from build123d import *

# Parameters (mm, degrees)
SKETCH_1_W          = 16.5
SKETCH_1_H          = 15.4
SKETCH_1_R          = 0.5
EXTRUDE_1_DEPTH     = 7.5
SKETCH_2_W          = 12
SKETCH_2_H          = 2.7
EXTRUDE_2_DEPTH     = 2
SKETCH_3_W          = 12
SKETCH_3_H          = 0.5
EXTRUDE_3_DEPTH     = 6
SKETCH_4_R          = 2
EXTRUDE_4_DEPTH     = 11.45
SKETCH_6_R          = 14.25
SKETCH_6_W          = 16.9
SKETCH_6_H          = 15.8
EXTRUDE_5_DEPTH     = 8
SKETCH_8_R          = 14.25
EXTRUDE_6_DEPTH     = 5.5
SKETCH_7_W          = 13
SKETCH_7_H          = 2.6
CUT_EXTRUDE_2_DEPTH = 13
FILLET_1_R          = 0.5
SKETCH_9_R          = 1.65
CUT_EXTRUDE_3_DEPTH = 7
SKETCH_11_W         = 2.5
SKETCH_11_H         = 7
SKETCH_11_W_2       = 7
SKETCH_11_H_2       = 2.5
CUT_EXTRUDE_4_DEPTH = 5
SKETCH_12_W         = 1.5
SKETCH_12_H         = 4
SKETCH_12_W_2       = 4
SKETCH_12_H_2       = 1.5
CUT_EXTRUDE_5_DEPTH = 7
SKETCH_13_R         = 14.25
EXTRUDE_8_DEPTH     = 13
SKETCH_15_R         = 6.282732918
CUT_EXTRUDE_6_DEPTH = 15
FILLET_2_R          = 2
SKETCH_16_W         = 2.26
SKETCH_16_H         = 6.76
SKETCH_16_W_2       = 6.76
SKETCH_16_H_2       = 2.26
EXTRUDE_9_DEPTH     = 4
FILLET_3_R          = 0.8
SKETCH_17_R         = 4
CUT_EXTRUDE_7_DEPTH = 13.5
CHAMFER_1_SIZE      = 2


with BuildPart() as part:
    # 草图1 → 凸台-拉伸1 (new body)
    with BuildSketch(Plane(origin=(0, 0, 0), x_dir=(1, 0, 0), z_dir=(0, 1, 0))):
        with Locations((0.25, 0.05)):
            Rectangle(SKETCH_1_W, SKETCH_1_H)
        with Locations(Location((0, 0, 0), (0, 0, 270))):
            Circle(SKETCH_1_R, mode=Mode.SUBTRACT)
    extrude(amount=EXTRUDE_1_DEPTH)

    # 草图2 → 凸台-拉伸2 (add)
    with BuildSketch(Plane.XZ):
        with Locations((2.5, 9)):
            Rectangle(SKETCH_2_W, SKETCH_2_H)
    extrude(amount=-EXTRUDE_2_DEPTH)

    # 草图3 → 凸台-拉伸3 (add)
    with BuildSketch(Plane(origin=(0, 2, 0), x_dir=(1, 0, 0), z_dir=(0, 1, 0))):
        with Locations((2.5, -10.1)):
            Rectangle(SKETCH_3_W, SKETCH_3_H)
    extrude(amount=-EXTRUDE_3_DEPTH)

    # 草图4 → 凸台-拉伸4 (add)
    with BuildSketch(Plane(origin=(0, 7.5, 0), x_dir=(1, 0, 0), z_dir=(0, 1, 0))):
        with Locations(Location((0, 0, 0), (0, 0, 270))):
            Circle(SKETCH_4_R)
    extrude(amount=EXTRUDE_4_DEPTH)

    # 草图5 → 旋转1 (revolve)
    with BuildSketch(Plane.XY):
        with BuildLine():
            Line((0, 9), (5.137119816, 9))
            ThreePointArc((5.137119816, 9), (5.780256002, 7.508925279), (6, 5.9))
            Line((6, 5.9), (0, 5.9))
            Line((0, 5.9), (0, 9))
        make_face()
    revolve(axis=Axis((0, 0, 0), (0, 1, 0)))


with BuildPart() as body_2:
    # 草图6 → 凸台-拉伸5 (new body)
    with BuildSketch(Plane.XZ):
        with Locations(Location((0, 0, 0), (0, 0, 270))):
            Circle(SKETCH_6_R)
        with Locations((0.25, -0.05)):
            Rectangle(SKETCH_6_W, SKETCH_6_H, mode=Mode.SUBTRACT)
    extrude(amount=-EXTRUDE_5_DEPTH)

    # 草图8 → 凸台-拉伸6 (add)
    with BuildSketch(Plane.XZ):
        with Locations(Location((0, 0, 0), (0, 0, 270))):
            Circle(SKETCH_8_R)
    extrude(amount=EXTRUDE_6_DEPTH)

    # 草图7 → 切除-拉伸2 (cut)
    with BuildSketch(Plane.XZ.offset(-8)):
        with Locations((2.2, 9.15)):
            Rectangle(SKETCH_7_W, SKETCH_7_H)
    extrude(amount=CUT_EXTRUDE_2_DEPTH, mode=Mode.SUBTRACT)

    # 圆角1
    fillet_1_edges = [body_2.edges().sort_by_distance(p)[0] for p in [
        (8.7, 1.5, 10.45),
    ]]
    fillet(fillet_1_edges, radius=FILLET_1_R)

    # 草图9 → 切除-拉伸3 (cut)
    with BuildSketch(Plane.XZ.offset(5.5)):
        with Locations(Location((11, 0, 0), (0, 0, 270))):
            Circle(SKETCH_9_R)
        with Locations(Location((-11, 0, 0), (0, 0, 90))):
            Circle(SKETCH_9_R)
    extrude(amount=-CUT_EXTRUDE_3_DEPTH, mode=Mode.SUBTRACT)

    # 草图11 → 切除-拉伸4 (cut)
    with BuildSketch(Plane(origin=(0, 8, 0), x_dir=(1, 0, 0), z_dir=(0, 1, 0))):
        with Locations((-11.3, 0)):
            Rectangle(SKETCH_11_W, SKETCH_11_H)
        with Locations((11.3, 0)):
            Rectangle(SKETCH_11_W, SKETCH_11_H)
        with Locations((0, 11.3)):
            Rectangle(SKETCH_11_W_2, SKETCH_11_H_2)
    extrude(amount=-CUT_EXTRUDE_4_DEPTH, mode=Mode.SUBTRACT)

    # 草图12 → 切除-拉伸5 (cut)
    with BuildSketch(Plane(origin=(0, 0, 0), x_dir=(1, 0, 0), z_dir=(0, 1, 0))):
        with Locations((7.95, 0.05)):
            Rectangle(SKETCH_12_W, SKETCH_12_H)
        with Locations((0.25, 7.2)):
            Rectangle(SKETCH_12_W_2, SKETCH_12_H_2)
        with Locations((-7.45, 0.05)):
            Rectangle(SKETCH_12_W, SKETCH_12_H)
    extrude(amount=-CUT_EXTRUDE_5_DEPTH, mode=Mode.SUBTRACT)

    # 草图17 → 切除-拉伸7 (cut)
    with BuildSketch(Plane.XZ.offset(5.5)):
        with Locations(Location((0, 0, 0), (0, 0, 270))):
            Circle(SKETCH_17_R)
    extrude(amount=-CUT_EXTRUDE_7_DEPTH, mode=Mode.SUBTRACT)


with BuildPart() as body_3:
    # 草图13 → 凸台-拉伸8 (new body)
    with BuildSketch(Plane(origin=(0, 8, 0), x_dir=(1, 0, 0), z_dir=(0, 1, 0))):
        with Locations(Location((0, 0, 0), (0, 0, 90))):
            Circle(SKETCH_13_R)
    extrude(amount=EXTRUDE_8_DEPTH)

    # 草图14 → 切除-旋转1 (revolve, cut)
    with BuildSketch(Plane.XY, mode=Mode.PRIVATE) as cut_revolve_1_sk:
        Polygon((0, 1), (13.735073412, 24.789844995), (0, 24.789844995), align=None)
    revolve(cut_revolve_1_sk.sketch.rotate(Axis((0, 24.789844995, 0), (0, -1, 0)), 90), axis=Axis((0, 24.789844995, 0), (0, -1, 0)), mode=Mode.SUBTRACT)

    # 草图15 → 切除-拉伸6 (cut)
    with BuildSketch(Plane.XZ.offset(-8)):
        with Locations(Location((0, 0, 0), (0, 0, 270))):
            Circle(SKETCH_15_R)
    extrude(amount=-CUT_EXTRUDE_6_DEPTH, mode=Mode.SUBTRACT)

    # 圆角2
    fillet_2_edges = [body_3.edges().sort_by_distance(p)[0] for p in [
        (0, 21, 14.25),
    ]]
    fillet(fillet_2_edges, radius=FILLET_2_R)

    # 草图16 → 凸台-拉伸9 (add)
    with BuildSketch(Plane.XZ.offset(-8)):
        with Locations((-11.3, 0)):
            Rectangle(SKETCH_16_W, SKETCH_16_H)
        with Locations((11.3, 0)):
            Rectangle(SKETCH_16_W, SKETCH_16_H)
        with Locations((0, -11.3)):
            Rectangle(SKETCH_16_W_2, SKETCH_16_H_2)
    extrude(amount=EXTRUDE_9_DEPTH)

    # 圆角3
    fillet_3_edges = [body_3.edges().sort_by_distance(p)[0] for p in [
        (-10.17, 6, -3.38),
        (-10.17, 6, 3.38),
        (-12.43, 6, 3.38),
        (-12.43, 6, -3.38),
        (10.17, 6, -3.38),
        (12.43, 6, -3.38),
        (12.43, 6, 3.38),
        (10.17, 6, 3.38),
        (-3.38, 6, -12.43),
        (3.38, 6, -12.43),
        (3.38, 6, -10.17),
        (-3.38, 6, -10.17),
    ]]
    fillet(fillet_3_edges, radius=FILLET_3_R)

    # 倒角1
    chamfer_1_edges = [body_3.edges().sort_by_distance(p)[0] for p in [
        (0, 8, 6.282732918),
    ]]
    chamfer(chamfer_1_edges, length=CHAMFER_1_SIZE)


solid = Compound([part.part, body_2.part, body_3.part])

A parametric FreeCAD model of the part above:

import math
import FreeCAD as App
import Part
import Sketcher

V = App.Vector
Q = App.Units.Quantity


def edges_at(feature, points):
    """Names of the edges that pass closest to the given points."""
    edges = feature.Shape.Edges
    near = lambda p: min(range(len(edges)), key=lambda i: edges[i].distToShape(Part.Vertex(*p))[0])
    return sorted({f"Edge{near(p) + 1}" for p in points})

doc = App.newDocument("Part")
body = doc.addObject("PartDesign::Body", "Body")

# Sketch on XZ plane
sketch1 = doc.addObject("Sketcher::SketchObject", "Sketch")
body.addObject(sketch1)
sketch1.AttachmentSupport = (doc.XZ_Plane, [""])
sketch1.MapMode = "FlatFace"
sketch1.addGeometry([
    Part.LineSegment(V(-8, -7.8, 0), V(-8, 7.7, 0)),  # 0
    Part.LineSegment(V(-8, 7.7, 0), V(8.5, 7.7, 0)),  # 1
    Part.LineSegment(V(8.5, 7.7, 0), V(8.5, -7.8, 0)),  # 2
    Part.LineSegment(V(8.5, -7.8, 0), V(-8, -7.8, 0)),  # 3
    Part.Circle(V(0, 0, 0), V(0, 0, 1), 0.5),  # 4
], False)
sketch1.addConstraint([
    Sketcher.Constraint("Coincident", 0, 2, 1, 1),
    Sketcher.Constraint("Coincident", 1, 2, 2, 1),
    Sketcher.Constraint("Coincident", 2, 2, 3, 1),
    Sketcher.Constraint("Coincident", 3, 2, 0, 1),
    Sketcher.Constraint("Vertical", 0),
    Sketcher.Constraint("Horizontal", 1),
    Sketcher.Constraint("Vertical", 2),
    Sketcher.Constraint("Horizontal", 3),
    Sketcher.Constraint("Coincident", 4, 3, -1, 1),
    Sketcher.Constraint("Diameter", 4, Q("1 mm")),
    Sketcher.Constraint("DistanceX", 1, 1, 1, 2, Q("16.5 mm")),
    Sketcher.Constraint("DistanceY", 0, 1, 0, 2, Q("15.4 mm")),
    Sketcher.Constraint("DistanceX", 0, 2, -1, 1, Q("8 mm")),
    Sketcher.Constraint("DistanceY", -1, 1, 0, 2, Q("7.65 mm")),
])
pad1 = doc.addObject("PartDesign::Pad", "Pad")
body.addObject(pad1)
pad1.Profile = sketch1
pad1.Length = 7.5
pad1.Reversed = True

# Sketch on XZ plane
sketch2 = doc.addObject("Sketcher::SketchObject", "Sketch001")
body.addObject(sketch2)
sketch2.AttachmentSupport = (doc.XZ_Plane, [""])
sketch2.MapMode = "FlatFace"
sketch2.addGeometry([
    Part.LineSegment(V(-3.5, 10.3, 0), V(-3.5, 7.7, 0)),
    Part.LineSegment(V(-3.5, 7.7, 0), V(8.5, 7.7, 0)),
    Part.LineSegment(V(8.5, 7.7, 0), V(8.5, 10.3, 0)),
    Part.LineSegment(V(8.5, 10.3, 0), V(-3.5, 10.3, 0)),
], False)
sketch2.addConstraint([
    Sketcher.Constraint("Coincident", 0, 2, 1, 1),
    Sketcher.Constraint("Coincident", 1, 2, 2, 1),
    Sketcher.Constraint("Coincident", 2, 2, 3, 1),
    Sketcher.Constraint("Coincident", 3, 2, 0, 1),
    Sketcher.Constraint("Vertical", 0),
    Sketcher.Constraint("Horizontal", 1),
    Sketcher.Constraint("Vertical", 2),
    Sketcher.Constraint("Horizontal", 3),
    Sketcher.Constraint("DistanceX", 1, 1, 1, 2, Q("12 mm")),
    Sketcher.Constraint("DistanceY", 0, 2, 0, 1, Q("2.7 mm")),
    Sketcher.Constraint("DistanceX", 0, 2, -1, 1, Q("3.5 mm")),
    Sketcher.Constraint("DistanceY", -1, 1, 0, 2, Q("7.65 mm")),
])
pad2 = doc.addObject("PartDesign::Pad", "Pad001")
body.addObject(pad2)
pad2.Profile = sketch2
pad2.Length = 2
pad2.Reversed = True

# Sketch on XZ plane
sketch3 = doc.addObject("Sketcher::SketchObject", "Sketch002")
body.addObject(sketch3)
sketch3.AttachmentSupport = (doc.XZ_Plane, [""])
sketch3.MapMode = "FlatFace"
sketch3.AttachmentOffset = App.Placement(V(0, 0, -2), App.Rotation())
sketch3.addGeometry([
    Part.LineSegment(V(-3.5, 9.8, 0), V(-3.5, 10.3, 0)),
    Part.LineSegment(V(-3.5, 10.3, 0), V(8.5, 10.3, 0)),
    Part.LineSegment(V(8.5, 10.3, 0), V(8.5, 9.8, 0)),
    Part.LineSegment(V(8.5, 9.8, 0), V(-3.5, 9.8, 0)),
], False)
sketch3.addConstraint([
    Sketcher.Constraint("Coincident", 0, 2, 1, 1),
    Sketcher.Constraint("Coincident", 1, 2, 2, 1),
    Sketcher.Constraint("Coincident", 2, 2, 3, 1),
    Sketcher.Constraint("Coincident", 3, 2, 0, 1),
    Sketcher.Constraint("Vertical", 0),
    Sketcher.Constraint("Horizontal", 1),
    Sketcher.Constraint("Vertical", 2),
    Sketcher.Constraint("Horizontal", 3),
    Sketcher.Constraint("DistanceX", 1, 1, 1, 2, Q("12 mm")),
    Sketcher.Constraint("DistanceY", 0, 1, 0, 2, Q("0.5 mm")),
    Sketcher.Constraint("DistanceX", 0, 2, -1, 1, Q("3.5 mm")),
    Sketcher.Constraint("DistanceY", -1, 1, 0, 2, Q("10.35 mm")),
])
pad3 = doc.addObject("PartDesign::Pad", "Pad002")
body.addObject(pad3)
pad3.Profile = sketch3
pad3.Length = 6

# Sketch on XZ plane
sketch4 = doc.addObject("Sketcher::SketchObject", "Sketch003")
body.addObject(sketch4)
sketch4.AttachmentSupport = (doc.XZ_Plane, [""])
sketch4.MapMode = "FlatFace"
sketch4.AttachmentOffset = App.Placement(V(0, 0, -7.5), App.Rotation())
sketch4.addGeometry(Part.Circle(V(0, 0, 0), V(0, 0, 1), 2), False)
sketch4.addConstraint([
    Sketcher.Constraint("Coincident", 0, 3, -1, 1),
    Sketcher.Constraint("Diameter", 0, Q("4 mm")),
])
pad4 = doc.addObject("PartDesign::Pad", "Pad003")
body.addObject(pad4)
pad4.Profile = sketch4
pad4.Length = 11.45
pad4.Reversed = True

# Sketch on XY plane
sketch5 = doc.addObject("Sketcher::SketchObject", "Sketch004")
body.addObject(sketch5)
sketch5.AttachmentSupport = (doc.XY_Plane, [""])
sketch5.MapMode = "FlatFace"
sketch5.addGeometry([
    Part.LineSegment(V(5.1, 9, 0), V(0, 9, 0)),
    Part.LineSegment(V(0, 9, 0), V(0, 5.9, 0)),
    Part.LineSegment(V(0, 5.9, 0), V(6, 5.9, 0)),
    Part.ArcOfCircle(Part.Circle(V(0, 5.9, 0), V(0, 0, 1), 6), math.radians(0), math.radians(31)),
], False)
sketch5.addConstraint([
    Sketcher.Constraint("Coincident", 0, 2, 1, 1),
    Sketcher.Constraint("Coincident", 1, 2, 2, 1),
    Sketcher.Constraint("Coincident", 2, 2, 3, 1),
    Sketcher.Constraint("Coincident", 3, 2, 0, 1),
    Sketcher.Constraint("Horizontal", 0),
    Sketcher.Constraint("Vertical", 1),
    Sketcher.Constraint("Horizontal", 2),
    Sketcher.Constraint("Coincident", 1, 2, 3, 3),
    Sketcher.Constraint("PointOnObject", 3, 3, -2),
    Sketcher.Constraint("Radius", 3, Q("6 mm")),
    Sketcher.Constraint("DistanceY", 1, 2, 1, 1, Q("3.1 mm")),
    Sketcher.Constraint("DistanceY", -1, 1, 0, 2, Q("9 mm")),
])
revolution = doc.addObject("PartDesign::Revolution", "Revolution")
body.addObject(revolution)
revolution.Profile = sketch5
revolution.ReferenceAxis = (sketch5, ["V_Axis"])
revolution.Angle = 360
body2 = doc.addObject("PartDesign::Body", "Body001")

# Sketch on XZ plane
sketch6 = doc.addObject("Sketcher::SketchObject", "Sketch005")
body2.addObject(sketch6)
sketch6.AttachmentSupport = (doc.getObject("XZ_Plane001"), [""])
sketch6.MapMode = "FlatFace"
sketch6.addGeometry([
    Part.Circle(V(0, 0, 0), V(0, 0, 1), 14),  # 0
    Part.LineSegment(V(9, -8, 0), V(-8, -8, 0)),  # 1
    Part.LineSegment(V(-8, -8, 0), V(-8, 8, 0)),  # 2
    Part.LineSegment(V(-8, 8, 0), V(9, 8, 0)),  # 3
    Part.LineSegment(V(9, 8, 0), V(9, -8, 0)),  # 4
], False)
sketch6.addConstraint([
    Sketcher.Constraint("Coincident", 1, 2, 2, 1),
    Sketcher.Constraint("Coincident", 2, 2, 3, 1),
    Sketcher.Constraint("Coincident", 3, 2, 4, 1),
    Sketcher.Constraint("Coincident", 4, 2, 1, 1),
    Sketcher.Constraint("Horizontal", 1),
    Sketcher.Constraint("Vertical", 2),
    Sketcher.Constraint("Horizontal", 3),
    Sketcher.Constraint("Vertical", 4),
    Sketcher.Constraint("Coincident", 0, 3, -1, 1),
    Sketcher.Constraint("Diameter", 0, Q("28.5 mm")),
    Sketcher.Constraint("DistanceX", 1, 2, 1, 1, Q("16.9 mm")),
    Sketcher.Constraint("DistanceY", 2, 1, 2, 2, Q("15.8 mm")),
    Sketcher.Constraint("DistanceX", 1, 2, -1, 1, Q("8.2 mm")),
    Sketcher.Constraint("DistanceY", 1, 2, -1, 1, Q("7.95 mm")),
])
pad5 = doc.addObject("PartDesign::Pad", "Pad004")
body2.addObject(pad5)
pad5.Profile = sketch6
pad5.Length = 8
pad5.Reversed = True

# Sketch on XZ plane
sketch7 = doc.addObject("Sketcher::SketchObject", "Sketch006")
body2.addObject(sketch7)
sketch7.AttachmentSupport = (doc.getObject("XZ_Plane001"), [""])
sketch7.MapMode = "FlatFace"
sketch7.addGeometry(Part.Circle(V(0, 0, 0), V(0, 0, 1), 14), False)
sketch7.addConstraint([
    Sketcher.Constraint("Coincident", 0, 3, -1, 1),
    Sketcher.Constraint("Diameter", 0, Q("28.5 mm")),
])
pad6 = doc.addObject("PartDesign::Pad", "Pad005")
body2.addObject(pad6)
pad6.Profile = sketch7
pad6.Length = 5.5

# Sketch on XZ plane
sketch8 = doc.addObject("Sketcher::SketchObject", "Sketch007")
body2.addObject(sketch8)
sketch8.AttachmentSupport = (doc.getObject("XZ_Plane001"), [""])
sketch8.MapMode = "FlatFace"
sketch8.AttachmentOffset = App.Placement(V(0, 0, -8), App.Rotation())
sketch8.addGeometry([
    Part.LineSegment(V(-4.3, 10.4, 0), V(-4.3, 7.8, 0)),
    Part.LineSegment(V(-4.3, 7.8, 0), V(8.7, 7.8, 0)),
    Part.LineSegment(V(8.7, 7.8, 0), V(8.7, 10.4, 0)),
    Part.LineSegment(V(8.7, 10.4, 0), V(-4.3, 10.4, 0)),
], False)
sketch8.addConstraint([
    Sketcher.Constraint("Coincident", 0, 2, 1, 1),
    Sketcher.Constraint("Coincident", 1, 2, 2, 1),
    Sketcher.Constraint("Coincident", 2, 2, 3, 1),
    Sketcher.Constraint("Coincident", 3, 2, 0, 1),
    Sketcher.Constraint("Vertical", 0),
    Sketcher.Constraint("Horizontal", 1),
    Sketcher.Constraint("Vertical", 2),
    Sketcher.Constraint("Horizontal", 3),
    Sketcher.Constraint("DistanceX", 1, 1, 1, 2, Q("13 mm")),
    Sketcher.Constraint("DistanceY", 0, 2, 0, 1, Q("2.6 mm")),
    Sketcher.Constraint("DistanceX", 0, 2, -1, 1, Q("4.3 mm")),
    Sketcher.Constraint("DistanceY", -1, 1, 0, 2, Q("7.85 mm")),
])
pocket1 = doc.addObject("PartDesign::Pocket", "Pocket")
body2.addObject(pocket1)
pocket1.Profile = sketch8
pocket1.Length = 13
pocket1.Reversed = True
doc.recompute()

fillet = doc.addObject("PartDesign::Fillet", "Fillet")
body2.addObject(fillet)
fillet.Base = (pocket1, edges_at(pocket1, [(8.7, 1.5, 10.45)]))
fillet.Radius = 0.5

# Sketch on XZ plane
sketch9 = doc.addObject("Sketcher::SketchObject", "Sketch008")
body2.addObject(sketch9)
sketch9.AttachmentSupport = (doc.getObject("XZ_Plane001"), [""])
sketch9.MapMode = "FlatFace"
sketch9.AttachmentOffset = App.Placement(V(0, 0, 5.5), App.Rotation())
sketch9.addGeometry([
    Part.Circle(V(11, 0, 0), V(0, 0, 1), 1.6),
    Part.Circle(V(-11, 0, 0), V(0, 0, 1), 1.6),
], False)
sketch9.addConstraint([
    Sketcher.Constraint("Equal", 0, 1),
    Sketcher.Constraint("Symmetric", 0, 3, 1, 3, -1, 1),
    Sketcher.Constraint("PointOnObject", 0, 3, -1),
    Sketcher.Constraint("Diameter", 0, Q("3.3 mm")),
    Sketcher.Constraint("DistanceX", -1, 1, 0, 3, Q("11 mm")),
])
pocket2 = doc.addObject("PartDesign::Pocket", "Pocket001")
body2.addObject(pocket2)
pocket2.Profile = sketch9
pocket2.Length = 7

# Sketch on XZ plane
sketch10 = doc.addObject("Sketcher::SketchObject", "Sketch009")
body2.addObject(sketch10)
sketch10.AttachmentSupport = (doc.getObject("XZ_Plane001"), [""])
sketch10.MapMode = "FlatFace"
sketch10.AttachmentOffset = App.Placement(V(0, 0, -8), App.Rotation())
sketch10.addGeometry([
    Part.LineSegment(V(-12.6, -3.5, 0), V(-12.6, 3.5, 0)),  # 0
    Part.LineSegment(V(-12.6, 3.5, 0), V(-10.1, 3.5, 0)),  # 1
    Part.LineSegment(V(-10.1, 3.5, 0), V(-10.1, -3.5, 0)),  # 2
    Part.LineSegment(V(-10.1, -3.5, 0), V(-12.6, -3.5, 0)),  # 3
    Part.LineSegment(V(10.1, -3.5, 0), V(10.1, 3.5, 0)),  # 4
    Part.LineSegment(V(10.1, 3.5, 0), V(12.6, 3.5, 0)),  # 5
    Part.LineSegment(V(12.6, 3.5, 0), V(12.6, -3.5, 0)),  # 6
    Part.LineSegment(V(12.6, -3.5, 0), V(10.1, -3.5, 0)),  # 7
    Part.LineSegment(V(-3.5, -12.6, 0), V(-3.5, -10.1, 0)),  # 8
    Part.LineSegment(V(-3.5, -10.1, 0), V(3.5, -10.1, 0)),  # 9
    Part.LineSegment(V(3.5, -10.1, 0), V(3.5, -12.6, 0)),  # 10
    Part.LineSegment(V(3.5, -12.6, 0), V(-3.5, -12.6, 0)),  # 11
], False)
sketch10.addConstraint([
    Sketcher.Constraint("Coincident", 0, 2, 1, 1),
    Sketcher.Constraint("Coincident", 1, 2, 2, 1),
    Sketcher.Constraint("Coincident", 2, 2, 3, 1),
    Sketcher.Constraint("Coincident", 3, 2, 0, 1),
    Sketcher.Constraint("Coincident", 4, 2, 5, 1),
    Sketcher.Constraint("Coincident", 5, 2, 6, 1),
    Sketcher.Constraint("Coincident", 6, 2, 7, 1),
    Sketcher.Constraint("Coincident", 7, 2, 4, 1),
    Sketcher.Constraint("Coincident", 8, 2, 9, 1),
    Sketcher.Constraint("Coincident", 9, 2, 10, 1),
    Sketcher.Constraint("Coincident", 10, 2, 11, 1),
    Sketcher.Constraint("Coincident", 11, 2, 8, 1),
    Sketcher.Constraint("Vertical", 0),
    Sketcher.Constraint("Horizontal", 1),
    Sketcher.Constraint("Vertical", 2),
    Sketcher.Constraint("Horizontal", 3),
    Sketcher.Constraint("Vertical", 4),
    Sketcher.Constraint("Horizontal", 5),
    Sketcher.Constraint("Vertical", 6),
    Sketcher.Constraint("Horizontal", 7),
    Sketcher.Constraint("Vertical", 8),
    Sketcher.Constraint("Horizontal", 9),
    Sketcher.Constraint("Vertical", 10),
    Sketcher.Constraint("Horizontal", 11),
    Sketcher.Constraint("Symmetric", 2, 2, 4, 2, -1, 1),
    Sketcher.Constraint("Symmetric", 0, 2, 6, 2, -1, 1),
    Sketcher.Constraint("Horizontal", 1, 2, 4, 2),
    Sketcher.Constraint("Equal", 11, 0),
    Sketcher.Constraint("Equal", 7, 8),
    Sketcher.Constraint("DistanceX", 9, 1, 9, 2, Q("7 mm")),
    Sketcher.Constraint("DistanceX", 1, 1, 1, 2, Q("2.5 mm")),
    Sketcher.Constraint("DistanceX", 8, 2, -1, 1, Q("3.5 mm")),
    Sketcher.Constraint("DistanceX", 1, 2, 4, 2, Q("20.1 mm")),
    Sketcher.Constraint("DistanceY", 8, 2, -1, 1, Q("10.05 mm")),
])
pocket3 = doc.addObject("PartDesign::Pocket", "Pocket002")
body2.addObject(pocket3)
pocket3.Profile = sketch10
pocket3.Length = 5
pocket3.Reversed = True

# Sketch on XZ plane
sketch11 = doc.addObject("Sketcher::SketchObject", "Sketch010")
body2.addObject(sketch11)
sketch11.AttachmentSupport = (doc.getObject("XZ_Plane001"), [""])
sketch11.MapMode = "FlatFace"
sketch11.addGeometry([
    Part.LineSegment(V(7.2, -2, 0), V(7.2, 1.9, 0)),  # 0
    Part.LineSegment(V(7.2, 1.9, 0), V(8.7, 1.9, 0)),  # 1
    Part.LineSegment(V(8.7, 1.9, 0), V(8.7, -2, 0)),  # 2
    Part.LineSegment(V(8.7, -2, 0), V(7.2, -2, 0)),  # 3
    Part.LineSegment(V(-1.8, -8, 0), V(-1.8, -6.5, 0)),  # 4
    Part.LineSegment(V(-1.8, -6.5, 0), V(2.2, -6.5, 0)),  # 5
    Part.LineSegment(V(2.2, -6.5, 0), V(2.2, -8, 0)),  # 6
    Part.LineSegment(V(2.2, -8, 0), V(-1.8, -8, 0)),  # 7
    Part.LineSegment(V(-8.2, -2, 0), V(-8.2, 1.9, 0)),  # 8
    Part.LineSegment(V(-8.2, 1.9, 0), V(-6.7, 1.9, 0)),  # 9
    Part.LineSegment(V(-6.7, 1.9, 0), V(-6.7, -2, 0)),  # 10
    Part.LineSegment(V(-6.7, -2, 0), V(-8.2, -2, 0)),  # 11
], False)
sketch11.addConstraint([
    Sketcher.Constraint("Coincident", 0, 2, 1, 1),
    Sketcher.Constraint("Coincident", 1, 2, 2, 1),
    Sketcher.Constraint("Coincident", 2, 2, 3, 1),
    Sketcher.Constraint("Coincident", 3, 2, 0, 1),
    Sketcher.Constraint("Coincident", 4, 2, 5, 1),
    Sketcher.Constraint("Coincident", 5, 2, 6, 1),
    Sketcher.Constraint("Coincident", 6, 2, 7, 1),
    Sketcher.Constraint("Coincident", 7, 2, 4, 1),
    Sketcher.Constraint("Coincident", 8, 2, 9, 1),
    Sketcher.Constraint("Coincident", 9, 2, 10, 1),
    Sketcher.Constraint("Coincident", 10, 2, 11, 1),
    Sketcher.Constraint("Coincident", 11, 2, 8, 1),
    Sketcher.Constraint("Vertical", 0),
    Sketcher.Constraint("Horizontal", 1),
    Sketcher.Constraint("Vertical", 2),
    Sketcher.Constraint("Horizontal", 3),
    Sketcher.Constraint("Vertical", 4),
    Sketcher.Constraint("Horizontal", 5),
    Sketcher.Constraint("Vertical", 6),
    Sketcher.Constraint("Horizontal", 7),
    Sketcher.Constraint("Vertical", 8),
    Sketcher.Constraint("Horizontal", 9),
    Sketcher.Constraint("Vertical", 10),
    Sketcher.Constraint("Horizontal", 11),
    Sketcher.Constraint("Horizontal", 1, 2, 8, 2),
    Sketcher.Constraint("Horizontal", 3, 2, 10, 2),
    Sketcher.Constraint("Equal", 3, 9),
    Sketcher.Constraint("Equal", 7, 0),
    Sketcher.Constraint("Equal", 11, 4),
    Sketcher.Constraint("DistanceX", 5, 1, 5, 2, Q("4 mm")),
    Sketcher.Constraint("DistanceX", 1, 1, 1, 2, Q("1.5 mm")),
    Sketcher.Constraint("DistanceX", -1, 1, 0, 2, Q("7.2 mm")),
    Sketcher.Constraint("DistanceX", 8, 2, -1, 1, Q("8.2 mm")),
    Sketcher.Constraint("DistanceY", 4, 2, 3, 2, Q("4.4 mm")),
    Sketcher.Constraint("DistanceY", -1, 1, 0, 2, Q("1.95 mm")),
    Sketcher.Constraint("DistanceX", 4, 2, -1, 1, Q("1.75 mm")),
])
pocket4 = doc.addObject("PartDesign::Pocket", "Pocket003")
body2.addObject(pocket4)
pocket4.Profile = sketch11
pocket4.Length = 7
pocket4.Reversed = True

# Sketch on XZ plane
sketch12 = doc.addObject("Sketcher::SketchObject", "Sketch011")
body2.addObject(sketch12)
sketch12.AttachmentSupport = (doc.getObject("XZ_Plane001"), [""])
sketch12.MapMode = "FlatFace"
sketch12.AttachmentOffset = App.Placement(V(0, 0, 5.5), App.Rotation())
sketch12.addGeometry(Part.Circle(V(0, 0, 0), V(0, 0, 1), 4), False)
sketch12.addConstraint([
    Sketcher.Constraint("Coincident", 0, 3, -1, 1),
    Sketcher.Constraint("Diameter", 0, Q("8 mm")),
])
pocket5 = doc.addObject("PartDesign::Pocket", "Pocket004")
body2.addObject(pocket5)
pocket5.Profile = sketch12
pocket5.Length = 13.5
body3 = doc.addObject("PartDesign::Body", "Body002")

# Sketch on XZ plane
sketch13 = doc.addObject("Sketcher::SketchObject", "Sketch012")
body3.addObject(sketch13)
sketch13.AttachmentSupport = (doc.getObject("XZ_Plane002"), [""])
sketch13.MapMode = "FlatFace"
sketch13.AttachmentOffset = App.Placement(V(0, 0, -8), App.Rotation())
sketch13.addGeometry(Part.Circle(V(0, 0, 0), V(0, 0, 1), 14), False)
sketch13.addConstraint([
    Sketcher.Constraint("Coincident", 0, 3, -1, 1),
    Sketcher.Constraint("Diameter", 0, Q("28.5 mm")),
])
pad7 = doc.addObject("PartDesign::Pad", "Pad006")
body3.addObject(pad7)
pad7.Profile = sketch13
pad7.Length = 13
pad7.Reversed = True

# Sketch on XY plane
sketch14 = doc.addObject("Sketcher::SketchObject", "Sketch013")
body3.addObject(sketch14)
sketch14.AttachmentSupport = (doc.getObject("XY_Plane002"), [""])
sketch14.MapMode = "FlatFace"
sketch14.addGeometry([
    Part.LineSegment(V(0, 1, 0), V(14, 25, 0)),
    Part.LineSegment(V(14, 25, 0), V(0, 25, 0)),
    Part.LineSegment(V(0, 25, 0), V(0, 1, 0)),
], False)
sketch14.addConstraint([
    Sketcher.Constraint("Coincident", 0, 2, 1, 1),
    Sketcher.Constraint("Coincident", 1, 2, 2, 1),
    Sketcher.Constraint("Coincident", 2, 2, 0, 1),
    Sketcher.Constraint("Horizontal", 1),
    Sketcher.Constraint("Vertical", 2),
    Sketcher.Constraint("PointOnObject", 1, 2, -2),
    Sketcher.Constraint("Angle", 0, Q("60 deg")),
    Sketcher.Constraint("DistanceY", -1, 1, 2, 2, Q("1 mm")),
    Sketcher.Constraint("DistanceX", 1, 2, 1, 1, Q("13.735073 mm")),
])
groove = doc.addObject("PartDesign::Groove", "Groove")
body3.addObject(groove)
groove.Profile = sketch14
groove.ReferenceAxis = (sketch14, ["V_Axis"])
groove.Angle = 360

# Sketch on XZ plane
sketch15 = doc.addObject("Sketcher::SketchObject", "Sketch014")
body3.addObject(sketch15)
sketch15.AttachmentSupport = (doc.getObject("XZ_Plane002"), [""])
sketch15.MapMode = "FlatFace"
sketch15.AttachmentOffset = App.Placement(V(0, 0, -8), App.Rotation())
sketch15.addGeometry(Part.Circle(V(0, 0, 0), V(0, 0, 1), 6), False)
sketch15.addConstraint([
    Sketcher.Constraint("Coincident", 0, 3, -1, 1),
    Sketcher.Constraint("Diameter", 0, Q("12.565466 mm")),
])
pocket6 = doc.addObject("PartDesign::Pocket", "Pocket005")
body3.addObject(pocket6)
pocket6.Profile = sketch15
pocket6.Length = 15
doc.recompute()

fillet2 = doc.addObject("PartDesign::Fillet", "Fillet001")
body3.addObject(fillet2)
fillet2.Base = (pocket6, edges_at(pocket6, [(0, 21, 14.25)]))
fillet2.Radius = 2

# Sketch on XZ plane
sketch16 = doc.addObject("Sketcher::SketchObject", "Sketch015")
body3.addObject(sketch16)
sketch16.AttachmentSupport = (doc.getObject("XZ_Plane002"), [""])
sketch16.MapMode = "FlatFace"
sketch16.AttachmentOffset = App.Placement(V(0, 0, -8), App.Rotation())
sketch16.addGeometry([
    Part.LineSegment(V(-12.4, 3.4, 0), V(-12.4, -3.4, 0)),  # 0
    Part.LineSegment(V(-12.4, -3.4, 0), V(-10.2, -3.4, 0)),  # 1
    Part.LineSegment(V(-10.2, -3.4, 0), V(-10.2, 3.4, 0)),  # 2
    Part.LineSegment(V(-10.2, 3.4, 0), V(-12.4, 3.4, 0)),  # 3
    Part.LineSegment(V(10.2, 3.4, 0), V(10.2, -3.4, 0)),  # 4
    Part.LineSegment(V(10.2, -3.4, 0), V(12.4, -3.4, 0)),  # 5
    Part.LineSegment(V(12.4, -3.4, 0), V(12.4, 3.4, 0)),  # 6
    Part.LineSegment(V(12.4, 3.4, 0), V(10.2, 3.4, 0)),  # 7
    Part.LineSegment(V(-3.4, -10.2, 0), V(-3.4, -12.4, 0)),  # 8
    Part.LineSegment(V(-3.4, -12.4, 0), V(3.4, -12.4, 0)),  # 9
    Part.LineSegment(V(3.4, -12.4, 0), V(3.4, -10.2, 0)),  # 10
    Part.LineSegment(V(3.4, -10.2, 0), V(-3.4, -10.2, 0)),  # 11
], False)
sketch16.addConstraint([
    Sketcher.Constraint("Coincident", 0, 2, 1, 1),
    Sketcher.Constraint("Coincident", 1, 2, 2, 1),
    Sketcher.Constraint("Coincident", 2, 2, 3, 1),
    Sketcher.Constraint("Coincident", 3, 2, 0, 1),
    Sketcher.Constraint("Coincident", 4, 2, 5, 1),
    Sketcher.Constraint("Coincident", 5, 2, 6, 1),
    Sketcher.Constraint("Coincident", 6, 2, 7, 1),
    Sketcher.Constraint("Coincident", 7, 2, 4, 1),
    Sketcher.Constraint("Coincident", 8, 2, 9, 1),
    Sketcher.Constraint("Coincident", 9, 2, 10, 1),
    Sketcher.Constraint("Coincident", 10, 2, 11, 1),
    Sketcher.Constraint("Coincident", 11, 2, 8, 1),
    Sketcher.Constraint("Vertical", 0),
    Sketcher.Constraint("Horizontal", 1),
    Sketcher.Constraint("Vertical", 2),
    Sketcher.Constraint("Horizontal", 3),
    Sketcher.Constraint("Vertical", 4),
    Sketcher.Constraint("Horizontal", 5),
    Sketcher.Constraint("Vertical", 6),
    Sketcher.Constraint("Horizontal", 7),
    Sketcher.Constraint("Vertical", 8),
    Sketcher.Constraint("Horizontal", 9),
    Sketcher.Constraint("Vertical", 10),
    Sketcher.Constraint("Horizontal", 11),
    Sketcher.Constraint("Symmetric", 2, 2, 4, 2, -1, 1),
    Sketcher.Constraint("Symmetric", 0, 2, 6, 2, -1, 1),
    Sketcher.Constraint("Horizontal", 1, 2, 4, 2),
    Sketcher.Constraint("Equal", 11, 0),
    Sketcher.Constraint("Equal", 7, 8),
    Sketcher.Constraint("DistanceX", 1, 1, 1, 2, Q("2.26 mm")),
    Sketcher.Constraint("DistanceX", 9, 1, 9, 2, Q("6.76 mm")),
    Sketcher.Constraint("DistanceX", 0, 2, 4, 2, Q("22.6 mm")),
    Sketcher.Constraint("DistanceX", 8, 2, -1, 1, Q("3.38 mm")),
    Sketcher.Constraint("DistanceY", 8, 2, -1, 1, Q("12.43 mm")),
])
pad8 = doc.addObject("PartDesign::Pad", "Pad007")
body3.addObject(pad8)
pad8.Profile = sketch16
pad8.Length = 4
doc.recompute()

fillet3 = doc.addObject("PartDesign::Fillet", "Fillet002")
body3.addObject(fillet3)
fillet3.Base = (pad8, edges_at(pad8, [
    (-10.17, 6, -3.38),
    (-10.17, 6, 3.38),
    (-12.43, 6, 3.38),
    (-12.43, 6, -3.38),
    (10.17, 6, -3.38),
    (12.43, 6, -3.38),
    (12.43, 6, 3.38),
    (10.17, 6, 3.38),
    (-3.38, 6, -12.43),
    (3.38, 6, -12.43),
    (3.38, 6, -10.17),
    (-3.38, 6, -10.17),
]))
fillet3.Radius = 0.8
doc.recompute()

chamfer = doc.addObject("PartDesign::Chamfer", "Chamfer")
body3.addObject(chamfer)
chamfer.Base = (fillet3, edges_at(fillet3, [(0, 8, 6.283)]))
chamfer.Size = 2

doc.recompute()
